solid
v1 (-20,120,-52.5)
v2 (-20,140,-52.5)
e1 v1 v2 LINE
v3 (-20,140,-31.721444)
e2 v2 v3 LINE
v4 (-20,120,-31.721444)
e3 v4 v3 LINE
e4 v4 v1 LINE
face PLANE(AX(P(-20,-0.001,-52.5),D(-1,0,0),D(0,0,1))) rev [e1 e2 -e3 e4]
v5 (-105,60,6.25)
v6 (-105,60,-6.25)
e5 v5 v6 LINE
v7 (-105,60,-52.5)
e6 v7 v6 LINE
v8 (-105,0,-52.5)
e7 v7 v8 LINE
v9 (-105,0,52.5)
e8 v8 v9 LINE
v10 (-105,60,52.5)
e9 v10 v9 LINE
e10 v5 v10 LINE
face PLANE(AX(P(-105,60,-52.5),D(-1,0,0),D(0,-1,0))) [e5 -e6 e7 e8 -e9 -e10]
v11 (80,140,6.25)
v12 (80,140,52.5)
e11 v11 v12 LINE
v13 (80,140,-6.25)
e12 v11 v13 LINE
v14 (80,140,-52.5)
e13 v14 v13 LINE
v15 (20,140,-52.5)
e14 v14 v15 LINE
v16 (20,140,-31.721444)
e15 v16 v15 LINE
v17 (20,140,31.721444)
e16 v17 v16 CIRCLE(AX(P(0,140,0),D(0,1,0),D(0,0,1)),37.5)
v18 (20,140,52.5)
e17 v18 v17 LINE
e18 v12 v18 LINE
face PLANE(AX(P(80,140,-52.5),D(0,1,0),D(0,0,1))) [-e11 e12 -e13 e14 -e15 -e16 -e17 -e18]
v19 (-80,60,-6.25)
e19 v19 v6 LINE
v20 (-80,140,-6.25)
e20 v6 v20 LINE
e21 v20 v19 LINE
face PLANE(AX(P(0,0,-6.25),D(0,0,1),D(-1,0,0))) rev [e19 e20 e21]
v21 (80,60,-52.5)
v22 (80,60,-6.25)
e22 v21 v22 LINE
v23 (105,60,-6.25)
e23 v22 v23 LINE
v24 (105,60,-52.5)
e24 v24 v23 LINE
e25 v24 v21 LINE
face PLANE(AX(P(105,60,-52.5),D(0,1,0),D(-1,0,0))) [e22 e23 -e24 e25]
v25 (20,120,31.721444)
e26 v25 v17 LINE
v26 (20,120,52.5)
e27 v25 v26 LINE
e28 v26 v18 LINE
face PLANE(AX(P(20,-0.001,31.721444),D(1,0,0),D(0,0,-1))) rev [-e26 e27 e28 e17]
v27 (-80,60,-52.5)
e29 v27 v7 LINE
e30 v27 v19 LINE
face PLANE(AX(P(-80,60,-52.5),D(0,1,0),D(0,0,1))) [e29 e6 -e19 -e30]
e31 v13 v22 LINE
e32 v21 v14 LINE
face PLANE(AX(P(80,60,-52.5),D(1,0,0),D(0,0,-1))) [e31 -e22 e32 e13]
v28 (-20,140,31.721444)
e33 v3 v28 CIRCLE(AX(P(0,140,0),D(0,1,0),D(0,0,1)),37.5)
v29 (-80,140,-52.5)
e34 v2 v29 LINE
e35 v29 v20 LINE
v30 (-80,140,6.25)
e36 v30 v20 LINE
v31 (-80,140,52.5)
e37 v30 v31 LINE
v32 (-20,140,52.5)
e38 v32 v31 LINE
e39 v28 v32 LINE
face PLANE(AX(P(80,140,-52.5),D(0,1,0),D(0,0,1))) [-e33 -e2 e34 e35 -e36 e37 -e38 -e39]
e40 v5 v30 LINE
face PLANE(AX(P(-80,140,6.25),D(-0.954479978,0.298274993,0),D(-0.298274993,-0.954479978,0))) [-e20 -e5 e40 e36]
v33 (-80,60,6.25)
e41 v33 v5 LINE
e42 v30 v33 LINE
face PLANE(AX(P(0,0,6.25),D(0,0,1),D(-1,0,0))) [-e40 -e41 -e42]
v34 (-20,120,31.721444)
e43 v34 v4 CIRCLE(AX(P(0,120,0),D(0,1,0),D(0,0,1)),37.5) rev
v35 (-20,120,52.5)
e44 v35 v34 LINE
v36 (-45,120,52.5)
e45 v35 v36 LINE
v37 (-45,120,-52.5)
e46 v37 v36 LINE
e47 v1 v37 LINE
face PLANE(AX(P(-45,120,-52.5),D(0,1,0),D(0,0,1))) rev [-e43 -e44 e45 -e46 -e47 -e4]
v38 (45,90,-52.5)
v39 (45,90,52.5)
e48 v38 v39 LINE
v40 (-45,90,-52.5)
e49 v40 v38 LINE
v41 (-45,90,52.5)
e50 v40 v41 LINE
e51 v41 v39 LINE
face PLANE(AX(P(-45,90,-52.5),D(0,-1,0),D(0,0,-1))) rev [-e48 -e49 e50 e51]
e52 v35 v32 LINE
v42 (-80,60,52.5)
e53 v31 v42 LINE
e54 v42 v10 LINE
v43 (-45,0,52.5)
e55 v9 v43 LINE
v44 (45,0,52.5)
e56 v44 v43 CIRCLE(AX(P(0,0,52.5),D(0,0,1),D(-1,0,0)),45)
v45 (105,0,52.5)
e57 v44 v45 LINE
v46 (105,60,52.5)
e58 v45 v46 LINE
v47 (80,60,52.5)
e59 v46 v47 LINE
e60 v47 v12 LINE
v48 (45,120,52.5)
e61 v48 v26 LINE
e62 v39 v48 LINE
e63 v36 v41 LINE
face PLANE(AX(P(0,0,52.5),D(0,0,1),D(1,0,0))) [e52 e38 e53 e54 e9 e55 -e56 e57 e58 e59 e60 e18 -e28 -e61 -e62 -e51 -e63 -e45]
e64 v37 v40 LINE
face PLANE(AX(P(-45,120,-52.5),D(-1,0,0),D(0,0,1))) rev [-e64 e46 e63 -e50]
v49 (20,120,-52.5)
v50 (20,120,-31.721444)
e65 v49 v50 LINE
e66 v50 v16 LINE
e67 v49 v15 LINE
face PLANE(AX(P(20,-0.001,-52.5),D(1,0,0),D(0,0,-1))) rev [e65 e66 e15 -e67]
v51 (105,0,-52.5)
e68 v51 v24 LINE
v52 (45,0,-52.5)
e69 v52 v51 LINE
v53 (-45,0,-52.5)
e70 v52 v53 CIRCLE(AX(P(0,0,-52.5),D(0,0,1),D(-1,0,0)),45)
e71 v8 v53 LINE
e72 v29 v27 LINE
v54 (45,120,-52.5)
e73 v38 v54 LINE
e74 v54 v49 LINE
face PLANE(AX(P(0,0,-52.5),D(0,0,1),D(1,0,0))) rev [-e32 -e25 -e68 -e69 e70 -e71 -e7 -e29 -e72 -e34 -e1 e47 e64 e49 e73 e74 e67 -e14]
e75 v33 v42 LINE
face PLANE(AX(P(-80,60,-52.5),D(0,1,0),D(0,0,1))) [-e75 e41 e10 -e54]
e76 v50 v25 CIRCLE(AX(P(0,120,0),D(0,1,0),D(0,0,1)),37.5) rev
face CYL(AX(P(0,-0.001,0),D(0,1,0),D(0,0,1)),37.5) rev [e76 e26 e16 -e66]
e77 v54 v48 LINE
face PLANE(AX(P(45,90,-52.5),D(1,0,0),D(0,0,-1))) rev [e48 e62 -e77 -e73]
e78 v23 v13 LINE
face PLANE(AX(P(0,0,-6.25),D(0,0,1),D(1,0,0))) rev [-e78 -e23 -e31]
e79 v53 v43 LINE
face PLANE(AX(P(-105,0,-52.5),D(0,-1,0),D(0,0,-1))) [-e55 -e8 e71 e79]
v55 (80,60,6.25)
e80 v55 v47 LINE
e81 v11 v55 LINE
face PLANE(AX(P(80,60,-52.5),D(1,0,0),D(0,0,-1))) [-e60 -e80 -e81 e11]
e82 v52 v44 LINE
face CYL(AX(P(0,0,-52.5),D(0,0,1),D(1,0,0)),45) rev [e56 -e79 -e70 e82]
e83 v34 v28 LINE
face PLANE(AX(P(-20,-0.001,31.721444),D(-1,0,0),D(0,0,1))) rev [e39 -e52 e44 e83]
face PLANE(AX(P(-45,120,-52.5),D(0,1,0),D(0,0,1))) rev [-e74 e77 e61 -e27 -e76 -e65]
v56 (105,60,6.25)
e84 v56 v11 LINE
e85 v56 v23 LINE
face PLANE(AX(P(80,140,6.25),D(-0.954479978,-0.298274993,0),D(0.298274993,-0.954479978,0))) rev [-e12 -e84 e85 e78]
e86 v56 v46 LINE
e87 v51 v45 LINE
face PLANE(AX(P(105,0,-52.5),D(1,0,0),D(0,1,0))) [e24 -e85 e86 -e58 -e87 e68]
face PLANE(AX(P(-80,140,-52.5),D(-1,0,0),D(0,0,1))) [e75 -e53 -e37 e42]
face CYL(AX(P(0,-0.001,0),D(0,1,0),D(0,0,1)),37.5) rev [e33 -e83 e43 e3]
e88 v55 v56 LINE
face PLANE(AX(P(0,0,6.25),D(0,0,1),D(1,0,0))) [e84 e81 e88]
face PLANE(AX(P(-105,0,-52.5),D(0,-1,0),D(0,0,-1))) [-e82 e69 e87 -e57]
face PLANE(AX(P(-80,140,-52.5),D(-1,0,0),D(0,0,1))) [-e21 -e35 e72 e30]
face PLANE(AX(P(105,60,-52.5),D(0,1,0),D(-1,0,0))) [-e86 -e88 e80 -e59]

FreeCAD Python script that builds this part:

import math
import FreeCAD as App
import Part
import Sketcher


def add_polygon(sketch, points):
    """Adds a closed chain of lines whose ends are joined by coincident constraints."""
    first, n = sketch.GeometryCount, len(points)
    for a, b in zip(points, points[1:] + points[:1]):
        sketch.addGeometry(Part.LineSegment(App.Vector(*a, 0), App.Vector(*b, 0)), False)
    for i in range(n):
        sketch.addConstraint(Sketcher.Constraint("Coincident", first + i, 2, first + (i + 1) % n, 1))

doc = App.newDocument("Part")
params = doc.addObject("Spreadsheet::Sheet", "Params")
for row, (alias, value) in enumerate([
    ("sketch1_width", "210 mm"),
    ("sketch1_width2", "25 mm"),
    ("sketch1_height", "60 mm"),
    ("sketch1_height2", "80 mm"),
    ("pad1_length", "52.5 mm"),
    ("pad1_length2", "52.5 mm"),
    ("sketch2_radius", "45 mm"),
    ("sketch3_width", "90 mm"),
    ("sketch3_height", "30 mm"),
    ("sketch4_radius", "37.5 mm"),
    ("sketch4_width", "40 mm"),
    ("sketch5_width", "25 mm"),
    ("sketch5_height", "80 mm"),
    ("pad2_length", "12.5 mm"),
], start=1):
    params.set(f"A{row}", alias)
    params.set(f"B{row}", "=" + value)
    params.setAlias(f"B{row}", alias)

body = doc.addObject("PartDesign::Body", "Body")

# Sketch on XY plane
sketch1 = doc.addObject("Sketcher::SketchObject", "Sketch")
body.addObject(sketch1)
sketch1.AttachmentSupport = (doc.XY_Plane, [""])
sketch1.MapMode = "FlatFace"
add_polygon(sketch1, [(-105, 0), (105, 0), (105, 60), (80, 60), (80, 140), (-80, 140), (-80, 60), (-105, 60)])  # lines 0-7
sketch1.addConstraint(Sketcher.Constraint("Horizontal", 0))
sketch1.addConstraint(Sketcher.Constraint("Vertical", 1))
sketch1.addConstraint(Sketcher.Constraint("Horizontal", 2))
sketch1.addConstraint(Sketcher.Constraint("Vertical", 3))
sketch1.addConstraint(Sketcher.Constraint("Horizontal", 4))
sketch1.addConstraint(Sketcher.Constraint("Vertical", 5))
sketch1.addConstraint(Sketcher.Constraint("Horizontal", 6))
sketch1.addConstraint(Sketcher.Constraint("Vertical", 7))
sketch1.addConstraint(Sketcher.Constraint("Symmetric", 0, 2, 7, 2, -1, 1))
sketch1.addConstraint(Sketcher.Constraint("Symmetric", 2, 2, 5, 2, -2))
sketch1.addConstraint(Sketcher.Constraint("DistanceX", 0, 1, 0, 2, 210.0))
sketch1.addConstraint(Sketcher.Constraint("DistanceX", 2, 2, 2, 1, 25.0))
sketch1.addConstraint(Sketcher.Constraint("DistanceY", 1, 1, 1, 2, 60.0))
sketch1.addConstraint(Sketcher.Constraint("DistanceY", 3, 1, 3, 2, 80.0))
sketch1.setExpression("Constraints[18]", "Params.sketch1_width")
sketch1.setExpression("Constraints[19]", "Params.sketch1_width2")
sketch1.setExpression("Constraints[20]", "Params.sketch1_height")
sketch1.setExpression("Constraints[21]", "Params.sketch1_height2")
pad1 = doc.addObject("PartDesign::Pad", "Pad")
body.addObject(pad1)
pad1.Profile = sketch1
pad1.Type = "TwoLengths"
pad1.setExpression("Length", "Params.pad1_length")
pad1.setExpression("Length2", "Params.pad1_length2")

# Sketch on XY plane
sketch2 = doc.addObject("Sketcher::SketchObject", "Sketch001")
body.addObject(sketch2)
sketch2.AttachmentSupport = (doc.XY_Plane, [""])
sketch2.MapMode = "FlatFace"
sketch2.AttachmentOffset = App.Placement(App.Vector(0, 0, 52.5), App.Rotation())
sketch2.addGeometry(Part.LineSegment(App.Vector(-45, 0, 0), App.Vector(45, 0, 0)), False)
sketch2.addGeometry(Part.ArcOfCircle(Part.Circle(App.Vector(0, 0, 0), App.Vector(0, 0, 1), 45), math.radians(0), math.radians(180)), False)
sketch2.addConstraint(Sketcher.Constraint("Coincident", 0, 1, 1, 2))
sketch2.addConstraint(Sketcher.Constraint("Coincident", 1, 1, 0, 2))
sketch2.addConstraint(Sketcher.Constraint("Horizontal", 0))
sketch2.addConstraint(Sketcher.Constraint("Coincident", 1, 3, -1, 1))
sketch2.addConstraint(Sketcher.Constraint("PointOnObject", 0, 1, -1))
sketch2.addConstraint(Sketcher.Constraint("Radius", 1, 45.0))
sketch2.setExpression("Constraints[5]", "Params.sketch2_radius")
pocket1 = doc.addObject("PartDesign::Pocket", "Pocket")
body.addObject(pocket1)
pocket1.Profile = sketch2
pocket1.Type = "ThroughAll"

# Sketch on XY plane
sketch3 = doc.addObject("Sketcher::SketchObject", "Sketch002")
body.addObject(sketch3)
sketch3.AttachmentSupport = (doc.XY_Plane, [""])
sketch3.MapMode = "FlatFace"
sketch3.AttachmentOffset = App.Placement(App.Vector(0, 0, 52.5), App.Rotation())
add_polygon(sketch3, [(-45, 120), (-45, 90), (45, 90), (45, 120)])  # lines 0-3
sketch3.addConstraint(Sketcher.Constraint("Vertical", 0))
sketch3.addConstraint(Sketcher.Constraint("Horizontal", 1))
sketch3.addConstraint(Sketcher.Constraint("Vertical", 2))
sketch3.addConstraint(Sketcher.Constraint("Horizontal", 3))
sketch3.addConstraint(Sketcher.Constraint("DistanceX", 1, 1, 1, 2, 90.0))
sketch3.addConstraint(Sketcher.Constraint("DistanceY", 0, 2, 0, 1, 30.0))
sketch3.addConstraint(Sketcher.Constraint("DistanceX", 0, 2, -1, 1, 45.0))
sketch3.addConstraint(Sketcher.Constraint("DistanceY", -1, 1, 0, 2, 90.0))
sketch3.setExpression("Constraints[8]", "Params.sketch3_width")
sketch3.setExpression("Constraints[9]", "Params.sketch3_height")
pocket2 = doc.addObject("PartDesign::Pocket", "Pocket001")
body.addObject(pocket2)
pocket2.Profile = sketch3
pocket2.Type = "ThroughAll"

# Sketch on XZ plane
sketch4 = doc.addObject("Sketcher::SketchObject", "Sketch003")
body.addObject(sketch4)
sketch4.AttachmentSupport = (doc.XZ_Plane, [""])
sketch4.MapMode = "FlatFace"
sketch4.AttachmentOffset = App.Placement(App.Vector(0, 0, -140), App.Rotation())
sketch4.addGeometry(Part.LineSegment(App.Vector(-20, -52, 0), App.Vector(-20, -32, 0)), False)
sketch4.addGeometry(Part.ArcOfCircle(Part.Circle(App.Vector(0, 0, 0), App.Vector(0, 0, 1), 38), math.radians(122), math.radians(238)), False)
sketch4.addGeometry(Part.LineSegment(App.Vector(-20, 32, 0), App.Vector(-20, 52, 0)), False)
sketch4.addGeometry(Part.LineSegment(App.Vector(-20, 52, 0), App.Vector(20, 52, 0)), False)
sketch4.addGeometry(Part.LineSegment(App.Vector(20, 52, 0), App.Vector(20, 32, 0)), False)
sketch4.addGeometry(Part.ArcOfCircle(Part.Circle(App.Vector(0, 0, 0), App.Vector(0, 0, 1), 38), math.radians(-58), math.radians(58)), False)
sketch4.addGeometry(Part.LineSegment(App.Vector(20, -32, 0), App.Vector(20, -52, 0)), False)
sketch4.addGeometry(Part.LineSegment(App.Vector(20, -52, 0), App.Vector(-20, -52, 0)), False)
sketch4.addConstraint(Sketcher.Constraint("Coincident", 0, 2, 1, 2))
sketch4.addConstraint(Sketcher.Constraint("Coincident", 1, 1, 2, 1))
sketch4.addConstraint(Sketcher.Constraint("Coincident", 2, 2, 3, 1))
sketch4.addConstraint(Sketcher.Constraint("Coincident", 3, 2, 4, 1))
sketch4.addConstraint(Sketcher.Constraint("Coincident", 4, 2, 5, 2))
sketch4.addConstraint(Sketcher.Constraint("Coincident", 5, 1, 6, 1))
sketch4.addConstraint(Sketcher.Constraint("Coincident", 6, 2, 7, 1))
sketch4.addConstraint(Sketcher.Constraint("Coincident", 7, 2, 0, 1))
sketch4.addConstraint(Sketcher.Constraint("Vertical", 0))
sketch4.addConstraint(Sketcher.Constraint("Vertical", 2))
sketch4.addConstraint(Sketcher.Constraint("Horizontal", 3))
sketch4.addConstraint(Sketcher.Constraint("Vertical", 4))
sketch4.addConstraint(Sketcher.Constraint("Vertical", 6))
sketch4.addConstraint(Sketcher.Constraint("Horizontal", 7))
sketch4.addConstraint(Sketcher.Constraint("Coincident", 1, 3, -1, 1))
sketch4.addConstraint(Sketcher.Constraint("Coincident", 5, 3, -1, 1))
sketch4.addConstraint(Sketcher.Constraint("Equal", 1, 5))
sketch4.addConstraint(Sketcher.Constraint("Symmetric", 2, 2, 6, 2, -1, 1))
sketch4.addConstraint(Sketcher.Constraint("Horizontal", 1, 1, 4, 2))
sketch4.addConstraint(Sketcher.Constraint("Horizontal", 0, 2, 5, 1))
sketch4.addConstraint(Sketcher.Constraint("Radius", 1, 37.5))
sketch4.addConstraint(Sketcher.Constraint("DistanceX", 3, 1, 3, 2, 40.0))
sketch4.addConstraint(Sketcher.Constraint("DistanceY", -1, 1, 2, 2, 52.5))
sketch4.setExpression("Constraints[20]", "Params.sketch4_radius")
sketch4.setExpression("Constraints[21]", "Params.sketch4_width")
pocket3 = doc.addObject("PartDesign::Pocket", "Pocket002")
body.addObject(pocket3)
pocket3.Profile = sketch4
pocket3.Type = "UpToFirst"
pocket3.Reversed = True

# Sketch on XY plane
sketch5 = doc.addObject("Sketcher::SketchObject", "Sketch004")
body.addObject(sketch5)
sketch5.AttachmentSupport = (doc.XY_Plane, [""])
sketch5.MapMode = "FlatFace"
add_polygon(sketch5, [(105, 60), (80, 140), (80, 60)])  # lines 0-2
sketch5.addConstraint(Sketcher.Constraint("Vertical", 1))
sketch5.addConstraint(Sketcher.Constraint("Horizontal", 2))
sketch5.addConstraint(Sketcher.Constraint("DistanceX", 2, 1, 2, 2, 25.0))
sketch5.addConstraint(Sketcher.Constraint("DistanceY", 1, 2, 1, 1, 80.0))
sketch5.addConstraint(Sketcher.Constraint("DistanceX", -1, 1, 0, 2, 80.0))
sketch5.addConstraint(Sketcher.Constraint("DistanceY", -1, 1, 0, 2, 140.0))
sketch5.setExpression("Constraints[5]", "Params.sketch5_width")
sketch5.setExpression("Constraints[6]", "Params.sketch5_height")
pad2 = doc.addObject("PartDesign::Pad", "Pad001")
body.addObject(pad2)
pad2.Profile = sketch5
pad2.setExpression("Length", "Params.pad2_length")
pad2.Midplane = True
doc.recompute()

mirrored = doc.addObject("PartDesign::Mirrored", "Mirrored")
body.addObject(mirrored)
mirrored.Originals = [pad2]
mirrored.MirrorPlane = (doc.YZ_Plane, [""])
body.Tip = mirrored

doc.recompute()
